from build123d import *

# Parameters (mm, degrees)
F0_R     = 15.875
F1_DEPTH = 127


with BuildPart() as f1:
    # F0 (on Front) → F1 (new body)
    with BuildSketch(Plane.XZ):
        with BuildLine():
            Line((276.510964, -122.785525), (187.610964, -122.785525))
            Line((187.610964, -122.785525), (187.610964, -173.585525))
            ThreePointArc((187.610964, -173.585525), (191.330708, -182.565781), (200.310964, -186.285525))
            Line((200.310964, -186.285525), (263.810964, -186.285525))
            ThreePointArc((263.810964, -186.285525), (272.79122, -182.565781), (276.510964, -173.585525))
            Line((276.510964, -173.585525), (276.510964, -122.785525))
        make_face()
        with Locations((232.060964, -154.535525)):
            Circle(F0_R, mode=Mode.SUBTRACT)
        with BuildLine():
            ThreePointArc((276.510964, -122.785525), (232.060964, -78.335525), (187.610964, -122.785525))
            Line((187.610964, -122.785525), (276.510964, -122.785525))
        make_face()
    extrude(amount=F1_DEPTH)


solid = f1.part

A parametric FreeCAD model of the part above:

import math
import FreeCAD as App
import Part
import Sketcher

V = App.Vector
Q = App.Units.Quantity

doc = App.newDocument("Part")
body = doc.addObject("PartDesign::Body", "Body")

sketch1 = body.newObject("Sketcher::SketchObject", "Sketch")
sketch1.AttachmentSupport = (doc.getObject("XZ_Plane"), [""])
sketch1.MapMode = "FlatFace"
sketch1.addGeometry(Part.LineSegment(V(277, -174, 0), V(277, -123, 0)), False)
sketch1.addGeometry(Part.ArcOfCircle(Part.Circle(V(232, -123, 0), V(0, 0, 1), 44), math.radians(0), math.radians(180)), False)
sketch1.addGeometry(Part.LineSegment(V(188, -123, 0), V(188, -174, 0)), False)
sketch1.addGeometry(Part.ArcOfCircle(Part.Circle(V(200, -174, 0), V(0, 0, 1), 13), math.radians(-180), math.radians(-90)), False)
sketch1.addGeometry(Part.LineSegment(V(200, -186, 0), V(264, -186, 0)), False)
sketch1.addGeometry(Part.ArcOfCircle(Part.Circle(V(264, -174, 0), V(0, 0, 1), 13), math.radians(-90), math.radians(0)), False)
sketch1.addGeometry(Part.Circle(V(232, -155, 0), V(0, 0, 1), 16), False)
sketch1.addConstraint(Sketcher.Constraint("Tangent", 0, 2, 1, 1))
sketch1.addConstraint(Sketcher.Constraint("Tangent", 1, 2, 2, 1))
sketch1.addConstraint(Sketcher.Constraint("Tangent", 2, 2, 3, 1))
sketch1.addConstraint(Sketcher.Constraint("Tangent", 3, 2, 4, 1))
sketch1.addConstraint(Sketcher.Constraint("Tangent", 4, 2, 5, 1))
sketch1.addConstraint(Sketcher.Constraint("Tangent", 5, 2, 0, 1))
sketch1.addConstraint(Sketcher.Constraint("Vertical", 0))
sketch1.addConstraint(Sketcher.Constraint("Vertical", 2))
sketch1.addConstraint(Sketcher.Constraint("Horizontal", 4))
sketch1.addConstraint(Sketcher.Constraint("Equal", 3, 5))
sketch1.addConstraint(Sketcher.Constraint("Vertical", 1, 3, 6, 3))
sketch1.addConstraint(Sketcher.Constraint("Radius", 3, Q("0.5 in")))
sketch1.addConstraint(Sketcher.Constraint("Diameter", 6, Q("1.25 in")))
sketch1.addConstraint(Sketcher.Constraint("DistanceY", 0, 1, 0, 2, Q("2 in")))
sketch1.addConstraint(Sketcher.Constraint("Radius", 1, Q("1.75 in")))
sketch1.addConstraint(Sketcher.Constraint("DistanceY", 6, 3, 1, 3, Q("1.25 in")))
sketch1.addConstraint(Sketcher.Constraint("DistanceX", -1, 1, 1, 3, Q("232.060964 mm")))
sketch1.addConstraint(Sketcher.Constraint("DistanceY", 1, 3, -1, 1, Q("122.785525 mm")))
pad1 = body.newObject("PartDesign::Pad", "Pad")
pad1.Profile = sketch1
pad1.Length = Q("5 in")

doc.recompute()
